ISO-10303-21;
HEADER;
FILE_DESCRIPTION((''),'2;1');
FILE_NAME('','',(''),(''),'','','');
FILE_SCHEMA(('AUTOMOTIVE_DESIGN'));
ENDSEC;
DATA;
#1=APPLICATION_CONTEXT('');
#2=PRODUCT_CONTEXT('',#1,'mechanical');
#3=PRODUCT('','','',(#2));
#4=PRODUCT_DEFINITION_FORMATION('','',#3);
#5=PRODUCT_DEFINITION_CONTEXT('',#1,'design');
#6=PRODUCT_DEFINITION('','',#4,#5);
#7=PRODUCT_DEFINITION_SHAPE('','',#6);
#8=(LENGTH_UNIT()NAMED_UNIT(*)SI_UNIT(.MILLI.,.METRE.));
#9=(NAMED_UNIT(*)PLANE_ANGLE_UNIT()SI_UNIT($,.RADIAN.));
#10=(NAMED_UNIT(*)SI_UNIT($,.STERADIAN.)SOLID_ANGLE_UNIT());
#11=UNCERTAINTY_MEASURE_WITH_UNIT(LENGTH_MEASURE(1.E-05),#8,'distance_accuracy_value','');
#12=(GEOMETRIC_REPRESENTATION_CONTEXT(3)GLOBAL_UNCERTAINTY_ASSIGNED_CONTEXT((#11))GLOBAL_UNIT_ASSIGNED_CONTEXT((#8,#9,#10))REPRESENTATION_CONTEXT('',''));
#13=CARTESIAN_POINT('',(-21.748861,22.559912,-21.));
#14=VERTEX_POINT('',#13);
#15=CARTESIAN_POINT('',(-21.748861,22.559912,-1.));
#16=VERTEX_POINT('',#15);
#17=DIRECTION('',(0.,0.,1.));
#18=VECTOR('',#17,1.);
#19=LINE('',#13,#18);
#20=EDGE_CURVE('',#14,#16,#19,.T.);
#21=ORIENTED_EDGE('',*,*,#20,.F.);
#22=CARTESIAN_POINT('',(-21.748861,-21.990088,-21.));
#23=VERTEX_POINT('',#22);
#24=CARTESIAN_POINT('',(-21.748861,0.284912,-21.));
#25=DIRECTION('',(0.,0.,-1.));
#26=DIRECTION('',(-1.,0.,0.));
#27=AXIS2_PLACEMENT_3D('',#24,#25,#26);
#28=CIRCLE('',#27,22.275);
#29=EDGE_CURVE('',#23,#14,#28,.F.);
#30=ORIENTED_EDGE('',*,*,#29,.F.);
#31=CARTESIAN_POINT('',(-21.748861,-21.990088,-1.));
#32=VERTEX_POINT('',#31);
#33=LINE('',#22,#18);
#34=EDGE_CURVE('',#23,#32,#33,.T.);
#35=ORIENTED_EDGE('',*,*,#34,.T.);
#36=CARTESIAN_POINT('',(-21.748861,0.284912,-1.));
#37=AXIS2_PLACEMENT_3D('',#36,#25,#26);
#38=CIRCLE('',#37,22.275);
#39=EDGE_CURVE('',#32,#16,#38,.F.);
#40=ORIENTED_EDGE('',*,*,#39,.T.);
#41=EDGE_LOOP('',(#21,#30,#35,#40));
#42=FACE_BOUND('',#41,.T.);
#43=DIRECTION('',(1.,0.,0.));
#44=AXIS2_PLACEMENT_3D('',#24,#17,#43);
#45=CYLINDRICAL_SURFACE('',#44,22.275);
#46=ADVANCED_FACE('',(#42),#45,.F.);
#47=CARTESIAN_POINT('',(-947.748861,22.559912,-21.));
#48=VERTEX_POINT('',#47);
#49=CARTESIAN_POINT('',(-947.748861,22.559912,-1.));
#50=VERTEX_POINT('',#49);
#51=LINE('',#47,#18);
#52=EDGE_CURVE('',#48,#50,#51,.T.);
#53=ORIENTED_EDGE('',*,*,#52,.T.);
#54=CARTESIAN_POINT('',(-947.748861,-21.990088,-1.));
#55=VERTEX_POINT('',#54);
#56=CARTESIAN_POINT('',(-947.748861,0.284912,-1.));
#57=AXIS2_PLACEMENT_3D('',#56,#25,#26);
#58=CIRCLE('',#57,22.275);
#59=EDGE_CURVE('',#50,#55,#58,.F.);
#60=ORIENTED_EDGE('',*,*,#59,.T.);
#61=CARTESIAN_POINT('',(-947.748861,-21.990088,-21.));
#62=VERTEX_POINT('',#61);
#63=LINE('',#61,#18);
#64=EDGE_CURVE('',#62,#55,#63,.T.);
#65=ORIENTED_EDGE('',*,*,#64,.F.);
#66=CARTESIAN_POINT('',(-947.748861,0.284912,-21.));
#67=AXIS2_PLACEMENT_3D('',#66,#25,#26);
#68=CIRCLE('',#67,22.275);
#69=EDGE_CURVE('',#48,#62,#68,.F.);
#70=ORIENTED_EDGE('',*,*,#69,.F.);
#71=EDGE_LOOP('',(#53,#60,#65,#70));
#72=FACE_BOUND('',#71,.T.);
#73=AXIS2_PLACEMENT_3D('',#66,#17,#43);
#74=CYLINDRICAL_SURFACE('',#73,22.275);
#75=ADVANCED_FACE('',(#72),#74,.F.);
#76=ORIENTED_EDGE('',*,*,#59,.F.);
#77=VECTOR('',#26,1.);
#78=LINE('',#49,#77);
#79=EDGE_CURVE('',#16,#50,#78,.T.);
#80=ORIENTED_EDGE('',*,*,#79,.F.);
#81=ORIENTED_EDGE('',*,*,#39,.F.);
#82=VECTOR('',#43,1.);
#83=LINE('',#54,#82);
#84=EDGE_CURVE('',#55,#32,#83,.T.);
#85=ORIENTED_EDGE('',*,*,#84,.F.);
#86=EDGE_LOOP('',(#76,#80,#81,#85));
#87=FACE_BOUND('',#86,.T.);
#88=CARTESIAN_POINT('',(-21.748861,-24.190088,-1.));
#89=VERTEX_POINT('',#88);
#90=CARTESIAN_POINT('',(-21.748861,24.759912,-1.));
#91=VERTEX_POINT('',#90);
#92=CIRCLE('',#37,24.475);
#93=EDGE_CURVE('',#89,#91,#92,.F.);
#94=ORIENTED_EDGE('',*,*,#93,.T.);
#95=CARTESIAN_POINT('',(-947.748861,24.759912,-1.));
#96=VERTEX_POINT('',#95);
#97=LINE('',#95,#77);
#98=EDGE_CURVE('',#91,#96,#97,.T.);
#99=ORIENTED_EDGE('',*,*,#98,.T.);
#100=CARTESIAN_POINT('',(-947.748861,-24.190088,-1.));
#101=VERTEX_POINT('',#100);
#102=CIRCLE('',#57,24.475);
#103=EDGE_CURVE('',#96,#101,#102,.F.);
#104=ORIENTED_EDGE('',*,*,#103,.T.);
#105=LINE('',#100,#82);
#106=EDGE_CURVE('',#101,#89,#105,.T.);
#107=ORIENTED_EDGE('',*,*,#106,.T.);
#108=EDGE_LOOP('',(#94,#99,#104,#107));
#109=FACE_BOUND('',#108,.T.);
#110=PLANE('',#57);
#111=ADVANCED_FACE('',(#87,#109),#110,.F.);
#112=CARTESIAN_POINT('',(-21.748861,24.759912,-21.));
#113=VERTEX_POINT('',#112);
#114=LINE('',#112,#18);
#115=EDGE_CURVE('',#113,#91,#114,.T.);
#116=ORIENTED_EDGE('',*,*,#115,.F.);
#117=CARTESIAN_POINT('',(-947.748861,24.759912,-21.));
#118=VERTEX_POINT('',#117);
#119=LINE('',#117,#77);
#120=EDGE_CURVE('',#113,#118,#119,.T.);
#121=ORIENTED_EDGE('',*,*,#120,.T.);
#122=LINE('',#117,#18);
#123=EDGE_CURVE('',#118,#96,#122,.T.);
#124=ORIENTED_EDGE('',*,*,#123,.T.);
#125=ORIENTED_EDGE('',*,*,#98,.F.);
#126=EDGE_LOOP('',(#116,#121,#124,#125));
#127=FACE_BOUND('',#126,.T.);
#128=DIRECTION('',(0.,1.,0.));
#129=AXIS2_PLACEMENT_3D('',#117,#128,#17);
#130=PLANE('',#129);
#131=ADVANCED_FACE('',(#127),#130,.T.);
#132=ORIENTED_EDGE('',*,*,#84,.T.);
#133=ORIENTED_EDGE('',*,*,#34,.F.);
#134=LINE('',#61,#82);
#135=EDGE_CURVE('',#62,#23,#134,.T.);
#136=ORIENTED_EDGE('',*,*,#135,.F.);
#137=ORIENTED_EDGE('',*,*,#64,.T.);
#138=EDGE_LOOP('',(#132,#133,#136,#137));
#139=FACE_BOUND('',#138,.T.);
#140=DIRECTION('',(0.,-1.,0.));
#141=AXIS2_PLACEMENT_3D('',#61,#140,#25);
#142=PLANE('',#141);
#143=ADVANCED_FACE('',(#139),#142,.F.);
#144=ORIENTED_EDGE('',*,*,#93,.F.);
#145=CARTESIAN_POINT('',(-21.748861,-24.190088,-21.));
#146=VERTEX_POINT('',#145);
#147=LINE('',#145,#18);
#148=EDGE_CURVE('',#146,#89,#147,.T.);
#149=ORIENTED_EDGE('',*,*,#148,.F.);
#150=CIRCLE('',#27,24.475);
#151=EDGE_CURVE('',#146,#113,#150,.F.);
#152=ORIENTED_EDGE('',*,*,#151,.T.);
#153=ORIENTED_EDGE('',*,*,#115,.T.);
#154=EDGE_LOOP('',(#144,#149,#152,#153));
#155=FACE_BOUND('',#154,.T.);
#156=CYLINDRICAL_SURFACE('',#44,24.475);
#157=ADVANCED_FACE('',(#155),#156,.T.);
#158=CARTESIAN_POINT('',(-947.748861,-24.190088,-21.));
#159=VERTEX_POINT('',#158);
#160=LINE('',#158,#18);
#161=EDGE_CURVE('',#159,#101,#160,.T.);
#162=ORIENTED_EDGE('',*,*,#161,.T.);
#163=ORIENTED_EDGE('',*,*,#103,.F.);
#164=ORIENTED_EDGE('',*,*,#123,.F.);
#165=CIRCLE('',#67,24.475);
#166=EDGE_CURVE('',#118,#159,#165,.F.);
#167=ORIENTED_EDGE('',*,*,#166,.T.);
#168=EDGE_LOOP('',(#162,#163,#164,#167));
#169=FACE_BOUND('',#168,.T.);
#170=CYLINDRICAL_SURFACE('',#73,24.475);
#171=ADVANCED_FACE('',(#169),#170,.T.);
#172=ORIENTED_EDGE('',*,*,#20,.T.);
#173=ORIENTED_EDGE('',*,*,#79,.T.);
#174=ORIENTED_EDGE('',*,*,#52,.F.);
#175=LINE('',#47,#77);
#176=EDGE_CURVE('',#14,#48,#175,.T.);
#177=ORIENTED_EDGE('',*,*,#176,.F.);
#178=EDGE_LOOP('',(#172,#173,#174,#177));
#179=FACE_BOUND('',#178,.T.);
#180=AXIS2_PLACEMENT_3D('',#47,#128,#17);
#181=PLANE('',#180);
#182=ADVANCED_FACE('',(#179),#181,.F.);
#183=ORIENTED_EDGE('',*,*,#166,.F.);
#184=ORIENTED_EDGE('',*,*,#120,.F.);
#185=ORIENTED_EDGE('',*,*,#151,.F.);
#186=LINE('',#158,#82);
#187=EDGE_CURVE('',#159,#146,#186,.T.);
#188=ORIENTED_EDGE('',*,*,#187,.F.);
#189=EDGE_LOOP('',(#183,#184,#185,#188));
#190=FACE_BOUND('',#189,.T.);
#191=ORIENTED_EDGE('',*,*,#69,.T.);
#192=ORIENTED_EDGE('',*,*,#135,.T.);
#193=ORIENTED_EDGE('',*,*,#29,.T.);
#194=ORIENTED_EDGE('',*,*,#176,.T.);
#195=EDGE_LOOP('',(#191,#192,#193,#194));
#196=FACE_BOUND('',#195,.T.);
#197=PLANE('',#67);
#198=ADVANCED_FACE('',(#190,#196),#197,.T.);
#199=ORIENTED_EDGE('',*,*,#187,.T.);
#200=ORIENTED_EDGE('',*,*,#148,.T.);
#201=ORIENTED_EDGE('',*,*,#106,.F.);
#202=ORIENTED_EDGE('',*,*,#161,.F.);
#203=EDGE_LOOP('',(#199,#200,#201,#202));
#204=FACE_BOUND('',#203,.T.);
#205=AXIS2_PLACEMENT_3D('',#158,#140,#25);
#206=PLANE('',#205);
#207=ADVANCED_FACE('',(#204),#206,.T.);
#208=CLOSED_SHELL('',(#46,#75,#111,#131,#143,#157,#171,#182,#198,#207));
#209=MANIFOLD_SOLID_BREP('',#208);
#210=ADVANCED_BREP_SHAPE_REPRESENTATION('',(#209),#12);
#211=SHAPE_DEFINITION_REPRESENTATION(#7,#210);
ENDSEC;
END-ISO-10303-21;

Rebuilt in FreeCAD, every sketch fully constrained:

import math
import FreeCAD as App
import Part
import Sketcher

doc = App.newDocument("Part")
body = doc.addObject("PartDesign::Body", "Body")

# Sketch on XY plane
sketch1 = doc.addObject("Sketcher::SketchObject", "Sketch")
body.addObject(sketch1)
sketch1.AttachmentSupport = (doc.XY_Plane, [""])
sketch1.MapMode = "FlatFace"
sketch1.AttachmentOffset = App.Placement(App.Vector(0, 0, -1), App.Rotation())
sketch1.addGeometry(Part.LineSegment(App.Vector(-947.748861, -24.190088, 0), App.Vector(-21.748861, -24.190088, 0)), False)
sketch1.addGeometry(Part.ArcOfCircle(Part.Circle(App.Vector(-21.748861, 0.284912, 0), App.Vector(0, 0, 1), 24.475), math.radians(-90), math.radians(90)), False)
sketch1.addGeometry(Part.LineSegment(App.Vector(-21.748861, 24.759912, 0), App.Vector(-947.748861, 24.759912, 0)), False)
sketch1.addGeometry(Part.ArcOfCircle(Part.Circle(App.Vector(-947.748861, 0.284912, 0), App.Vector(0, 0, 1), 24.475), math.radians(90), math.radians(270)), False)
sketch1.addGeometry(Part.LineSegment(App.Vector(-21.748861, -21.990088, 0), App.Vector(-947.748861, -21.990088, 0)), False)
sketch1.addGeometry(Part.ArcOfCircle(Part.Circle(App.Vector(-947.748861, 0.284912, 0), App.Vector(0, 0, 1), 22.275), math.radians(90), math.radians(270)), False)
sketch1.addGeometry(Part.LineSegment(App.Vector(-947.748861, 22.559912, 0), App.Vector(-21.748861, 22.559912, 0)), False)
sketch1.addGeometry(Part.ArcOfCircle(Part.Circle(App.Vector(-21.748861, 0.284912, 0), App.Vector(0, 0, 1), 22.275), math.radians(-90), math.radians(90)), False)
sketch1.addConstraint(Sketcher.Constraint("Tangent", 0, 2, 1, 1))
sketch1.addConstraint(Sketcher.Constraint("Tangent", 1, 2, 2, 1))
sketch1.addConstraint(Sketcher.Constraint("Tangent", 2, 2, 3, 1))
sketch1.addConstraint(Sketcher.Constraint("Tangent", 3, 2, 0, 1))
sketch1.addConstraint(Sketcher.Constraint("Tangent", 4, 2, 5, 2))
sketch1.addConstraint(Sketcher.Constraint("Tangent", 5, 1, 6, 1))
sketch1.addConstraint(Sketcher.Constraint("Tangent", 6, 2, 7, 2))
sketch1.addConstraint(Sketcher.Constraint("Tangent", 7, 1, 4, 1))
sketch1.addConstraint(Sketcher.Constraint("Horizontal", 0))
sketch1.addConstraint(Sketcher.Constraint("Horizontal", 2))
sketch1.addConstraint(Sketcher.Constraint("Horizontal", 4))
sketch1.addConstraint(Sketcher.Constraint("Horizontal", 6))
sketch1.addConstraint(Sketcher.Constraint("Coincident", 5, 3, 3, 3))
sketch1.addConstraint(Sketcher.Constraint("Vertical", 7, 3, 0, 2))
sketch1.addConstraint(Sketcher.Constraint("DistanceX", 0, 1, 0, 2, 926.0))
sketch1.addConstraint(Sketcher.Constraint("Radius", 1, 24.475))
sketch1.addConstraint(Sketcher.Constraint("Radius", 5, 22.275))
sketch1.addConstraint(Sketcher.Constraint("DistanceX", 1, 3, -1, 1, 21.748861))
sketch1.addConstraint(Sketcher.Constraint("DistanceY", -1, 1, 1, 3, 0.284912))
pad1 = doc.addObject("PartDesign::Pad", "Pad")
body.addObject(pad1)
pad1.Profile = sketch1
pad1.Length = 20
pad1.Reversed = True

doc.recompute()
